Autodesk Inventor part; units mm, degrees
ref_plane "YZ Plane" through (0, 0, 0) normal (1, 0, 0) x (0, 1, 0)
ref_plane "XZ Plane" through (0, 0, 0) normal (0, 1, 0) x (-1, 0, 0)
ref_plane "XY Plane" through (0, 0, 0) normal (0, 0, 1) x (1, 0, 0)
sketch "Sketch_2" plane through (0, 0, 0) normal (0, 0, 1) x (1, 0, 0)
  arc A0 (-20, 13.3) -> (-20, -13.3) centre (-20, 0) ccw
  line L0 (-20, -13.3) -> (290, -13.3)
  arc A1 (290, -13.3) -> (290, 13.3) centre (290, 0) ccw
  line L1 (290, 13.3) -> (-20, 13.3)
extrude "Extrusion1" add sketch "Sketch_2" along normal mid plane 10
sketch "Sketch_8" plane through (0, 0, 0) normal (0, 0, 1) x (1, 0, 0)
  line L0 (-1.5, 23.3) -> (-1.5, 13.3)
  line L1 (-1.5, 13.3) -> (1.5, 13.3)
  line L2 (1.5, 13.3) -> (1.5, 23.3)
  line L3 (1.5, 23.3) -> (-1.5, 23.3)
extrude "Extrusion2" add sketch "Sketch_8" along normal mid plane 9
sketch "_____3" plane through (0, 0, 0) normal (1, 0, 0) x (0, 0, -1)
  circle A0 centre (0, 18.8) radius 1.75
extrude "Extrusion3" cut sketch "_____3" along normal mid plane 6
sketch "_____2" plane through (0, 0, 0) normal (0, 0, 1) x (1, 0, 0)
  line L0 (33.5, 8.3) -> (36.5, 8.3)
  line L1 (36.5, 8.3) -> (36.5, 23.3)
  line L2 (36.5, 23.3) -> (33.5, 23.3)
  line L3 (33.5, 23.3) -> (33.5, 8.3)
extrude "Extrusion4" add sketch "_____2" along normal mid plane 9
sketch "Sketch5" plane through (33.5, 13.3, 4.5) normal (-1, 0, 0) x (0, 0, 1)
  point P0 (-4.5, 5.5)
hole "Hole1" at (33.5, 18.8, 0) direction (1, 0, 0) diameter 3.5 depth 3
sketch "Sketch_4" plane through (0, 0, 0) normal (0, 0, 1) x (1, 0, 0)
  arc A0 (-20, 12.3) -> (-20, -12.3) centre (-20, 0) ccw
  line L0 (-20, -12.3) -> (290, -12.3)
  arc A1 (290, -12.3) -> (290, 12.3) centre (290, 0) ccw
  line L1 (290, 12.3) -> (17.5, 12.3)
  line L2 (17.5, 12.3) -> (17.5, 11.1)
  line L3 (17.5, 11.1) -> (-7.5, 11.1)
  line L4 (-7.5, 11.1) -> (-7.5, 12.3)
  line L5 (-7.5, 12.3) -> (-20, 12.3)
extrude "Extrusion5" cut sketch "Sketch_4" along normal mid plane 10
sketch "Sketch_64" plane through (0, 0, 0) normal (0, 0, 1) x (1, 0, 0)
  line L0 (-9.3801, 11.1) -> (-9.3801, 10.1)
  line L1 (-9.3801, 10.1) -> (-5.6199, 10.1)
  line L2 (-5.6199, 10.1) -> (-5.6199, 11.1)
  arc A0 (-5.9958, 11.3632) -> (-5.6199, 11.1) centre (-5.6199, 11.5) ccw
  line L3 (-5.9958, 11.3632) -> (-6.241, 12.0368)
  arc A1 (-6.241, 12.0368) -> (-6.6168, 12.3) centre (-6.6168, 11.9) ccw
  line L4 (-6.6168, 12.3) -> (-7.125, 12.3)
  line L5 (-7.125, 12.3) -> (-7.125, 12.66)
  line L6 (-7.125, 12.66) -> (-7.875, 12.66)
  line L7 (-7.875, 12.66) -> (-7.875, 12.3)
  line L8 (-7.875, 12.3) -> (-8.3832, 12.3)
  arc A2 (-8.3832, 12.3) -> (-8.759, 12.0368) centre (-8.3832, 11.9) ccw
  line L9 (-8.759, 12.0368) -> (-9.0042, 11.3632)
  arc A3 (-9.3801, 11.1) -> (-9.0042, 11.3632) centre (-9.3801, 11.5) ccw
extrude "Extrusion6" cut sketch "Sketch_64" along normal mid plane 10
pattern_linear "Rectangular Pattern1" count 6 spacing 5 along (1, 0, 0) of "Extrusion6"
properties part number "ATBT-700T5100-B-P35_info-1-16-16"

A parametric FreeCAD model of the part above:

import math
import FreeCAD as App
import Part
import Sketcher
from FreeCAD import Vector
Q = App.Units.Quantity

doc = App.newDocument("Part")
body = doc.addObject("PartDesign::Body", "Body")

# Sketch on XY plane
sketch1 = body.newObject("Sketcher::SketchObject", "Sketch")
sketch1.AttachmentSupport = (doc.getObject("XY_Plane"), [""])
sketch1.MapMode = "FlatFace"
sketch1.addGeometry([
    Part.LineSegment(Vector(290, 13.3, 0), Vector(-20, 13.3, 0)),
    Part.ArcOfCircle(Part.Circle(Vector(-20, 0, 0), Vector(0, 0, 1), 13.3), math.radians(90), math.radians(270)),
    Part.LineSegment(Vector(-20, -13.3, 0), Vector(290, -13.3, 0)),
    Part.ArcOfCircle(Part.Circle(Vector(290, 0, 0), Vector(0, 0, 1), 13.3), math.radians(-90), math.radians(90)),
], False)
sketch1.addConstraint([
    Sketcher.Constraint("Tangent", 0, 2, 1, 1),
    Sketcher.Constraint("Tangent", 1, 2, 2, 1),
    Sketcher.Constraint("Tangent", 2, 2, 3, 1),
    Sketcher.Constraint("Tangent", 3, 2, 0, 1),
    Sketcher.Constraint("Horizontal", 0),
    Sketcher.Constraint("Horizontal", 2),
    Sketcher.Constraint("PointOnObject", 1, 3, -1),
    Sketcher.Constraint("Radius", 1, Q("13.3 mm")),
    Sketcher.Constraint("DistanceX", 0, 2, 0, 1, Q("310 mm")),
    Sketcher.Constraint("DistanceX", 1, 3, -1, 1, Q("20 mm")),
])
pad1 = body.newObject("PartDesign::Pad", "Pad")
pad1.Profile = sketch1
pad1.Length = 10
pad1.Midplane = True

# Sketch on XY plane
sketch2 = body.newObject("Sketcher::SketchObject", "Sketch001")
sketch2.AttachmentSupport = (doc.getObject("XY_Plane"), [""])
sketch2.MapMode = "FlatFace"
sketch2.addGeometry([
    Part.LineSegment(Vector(1.5, 23.3, 0), Vector(-1.5, 23.3, 0)),
    Part.LineSegment(Vector(-1.5, 23.3, 0), Vector(-1.5, 13.3, 0)),
    Part.LineSegment(Vector(-1.5, 13.3, 0), Vector(1.5, 13.3, 0)),
    Part.LineSegment(Vector(1.5, 13.3, 0), Vector(1.5, 23.3, 0)),
], False)
sketch2.addConstraint([
    Sketcher.Constraint("Coincident", 0, 2, 1, 1),
    Sketcher.Constraint("Coincident", 1, 2, 2, 1),
    Sketcher.Constraint("Coincident", 2, 2, 3, 1),
    Sketcher.Constraint("Coincident", 3, 2, 0, 1),
    Sketcher.Constraint("Horizontal", 0),
    Sketcher.Constraint("Vertical", 1),
    Sketcher.Constraint("Horizontal", 2),
    Sketcher.Constraint("Vertical", 3),
    Sketcher.Constraint("DistanceX", 0, 2, 0, 1, Q("3 mm")),
    Sketcher.Constraint("DistanceY", 1, 2, 1, 1, Q("10 mm")),
    Sketcher.Constraint("DistanceX", 0, 2, -1, 1, Q("1.5 mm")),
    Sketcher.Constraint("DistanceY", -1, 1, 0, 2, Q("23.3 mm")),
])
pad2 = body.newObject("PartDesign::Pad", "Pad001")
pad2.Profile = sketch2
pad2.Length = 9
pad2.Midplane = True

# Sketch on YZ plane
sketch3 = body.newObject("Sketcher::SketchObject", "Sketch002")
sketch3.AttachmentSupport = (doc.getObject("YZ_Plane"), [""])
sketch3.MapMode = "FlatFace"
sketch3.addGeometry(Part.Circle(Vector(18.8, 0, 0), Vector(0, 0, 1), 1.75), False)
sketch3.addConstraint([
    Sketcher.Constraint("PointOnObject", 0, 3, -1),
    Sketcher.Constraint("Diameter", 0, Q("3.5 mm")),
    Sketcher.Constraint("DistanceX", -1, 1, 0, 3, Q("18.8 mm")),
])
pocket1 = body.newObject("PartDesign::Pocket", "Pocket")
pocket1.Profile = sketch3
pocket1.Length = 6
pocket1.Midplane = True

# Sketch on XY plane
sketch4 = body.newObject("Sketcher::SketchObject", "Sketch003")
sketch4.AttachmentSupport = (doc.getObject("XY_Plane"), [""])
sketch4.MapMode = "FlatFace"
sketch4.addGeometry([
    Part.LineSegment(Vector(33.5, 23.3, 0), Vector(33.5, 8.3, 0)),
    Part.LineSegment(Vector(33.5, 8.3, 0), Vector(36.5, 8.3, 0)),
    Part.LineSegment(Vector(36.5, 8.3, 0), Vector(36.5, 23.3, 0)),
    Part.LineSegment(Vector(36.5, 23.3, 0), Vector(33.5, 23.3, 0)),
], False)
sketch4.addConstraint([
    Sketcher.Constraint("Coincident", 0, 2, 1, 1),
    Sketcher.Constraint("Coincident", 1, 2, 2, 1),
    Sketcher.Constraint("Coincident", 2, 2, 3, 1),
    Sketcher.Constraint("Coincident", 3, 2, 0, 1),
    Sketcher.Constraint("Vertical", 0),
    Sketcher.Constraint("Horizontal", 1),
    Sketcher.Constraint("Vertical", 2),
    Sketcher.Constraint("Horizontal", 3),
    Sketcher.Constraint("DistanceX", 1, 1, 1, 2, Q("3 mm")),
    Sketcher.Constraint("DistanceY", 0, 2, 0, 1, Q("15 mm")),
    Sketcher.Constraint("DistanceX", -1, 1, 0, 2, Q("33.5 mm")),
    Sketcher.Constraint("DistanceY", -1, 1, 0, 2, Q("8.3 mm")),
])
pad3 = body.newObject("PartDesign::Pad", "Pad002")
pad3.Profile = sketch4
pad3.Length = 9
pad3.Midplane = True

# Sketch on YZ plane
sketch5 = body.newObject("Sketcher::SketchObject", "Sketch004")
sketch5.AttachmentSupport = (doc.getObject("YZ_Plane"), [""])
sketch5.MapMode = "FlatFace"
sketch5.AttachmentOffset = App.Placement(Vector(0, 0, 33.5), App.Rotation())
sketch5.addGeometry(Part.Circle(Vector(18.8, 0, 0), Vector(0, 0, 1), 1.75), False)
sketch5.addConstraint([
    Sketcher.Constraint("PointOnObject", 0, 3, -1),
    Sketcher.Constraint("Diameter", 0, Q("3.5 mm")),
    Sketcher.Constraint("DistanceX", -1, 1, 0, 3, Q("18.8 mm")),
])
doc.recompute()
hole = body.newObject("PartDesign::Hole", "Hole")
hole.Profile = sketch5
hole.ThreadType = "None"
hole.Diameter = 3.5
hole.DepthType = "Dimension"
hole.Depth = 3
hole.DrillPoint = "Flat"
hole.Reversed = True

# Sketch on XY plane
sketch6 = body.newObject("Sketcher::SketchObject", "Sketch005")
sketch6.AttachmentSupport = (doc.getObject("XY_Plane"), [""])
sketch6.MapMode = "FlatFace"
sketch6.addGeometry([
    Part.LineSegment(Vector(-7.5, 12.3, 0), Vector(-20, 12.3, 0)),  # 0
    Part.ArcOfCircle(Part.Circle(Vector(-20, 0, 0), Vector(0, 0, 1), 12.3), math.radians(90), math.radians(270)),  # 1
    Part.LineSegment(Vector(-20, -12.3, 0), Vector(290, -12.3, 0)),  # 2
    Part.ArcOfCircle(Part.Circle(Vector(290, 0, 0), Vector(0, 0, 1), 12.3), math.radians(-90), math.radians(90)),  # 3
    Part.LineSegment(Vector(290, 12.3, 0), Vector(17.5, 12.3, 0)),  # 4
    Part.LineSegment(Vector(17.5, 12.3, 0), Vector(17.5, 11.1, 0)),  # 5
    Part.LineSegment(Vector(17.5, 11.1, 0), Vector(-7.5, 11.1, 0)),  # 6
    Part.LineSegment(Vector(-7.5, 11.1, 0), Vector(-7.5, 12.3, 0)),  # 7
], False)
sketch6.addConstraint([
    Sketcher.Constraint("Tangent", 0, 2, 1, 1),
    Sketcher.Constraint("Tangent", 1, 2, 2, 1),
    Sketcher.Constraint("Tangent", 2, 2, 3, 1),
    Sketcher.Constraint("Tangent", 3, 2, 4, 1),
    Sketcher.Constraint("Coincident", 4, 2, 5, 1),
    Sketcher.Constraint("Coincident", 5, 2, 6, 1),
    Sketcher.Constraint("Coincident", 6, 2, 7, 1),
    Sketcher.Constraint("Coincident", 7, 2, 0, 1),
    Sketcher.Constraint("Horizontal", 0),
    Sketcher.Constraint("Horizontal", 2),
    Sketcher.Constraint("Horizontal", 4),
    Sketcher.Constraint("Vertical", 5),
    Sketcher.Constraint("Horizontal", 6),
    Sketcher.Constraint("Vertical", 7),
    Sketcher.Constraint("Equal", 1, 3),
    Sketcher.Constraint("PointOnObject", 1, 3, -1),
    Sketcher.Constraint("Radius", 1, Q("12.3 mm")),
    Sketcher.Constraint("DistanceX", 2, 1, 2, 2, Q("310 mm")),
    Sketcher.Constraint("DistanceX", 6, 2, 6, 1, Q("25 mm")),
    Sketcher.Constraint("DistanceX", 0, 2, 0, 1, Q("12.5 mm")),
    Sketcher.Constraint("DistanceY", 5, 2, 5, 1, Q("1.2 mm")),
    Sketcher.Constraint("DistanceX", 1, 3, -1, 1, Q("20 mm")),
])
pocket2 = body.newObject("PartDesign::Pocket", "Pocket001")
pocket2.Profile = sketch6
pocket2.Length = 10
pocket2.Midplane = True

# Sketch on XY plane
sketch7 = body.newObject("Sketcher::SketchObject", "Sketch006")
sketch7.AttachmentSupport = (doc.getObject("XY_Plane"), [""])
sketch7.MapMode = "FlatFace"
sketch7.addGeometry([
    Part.ArcOfCircle(Part.Circle(Vector(-9.3801, 11.5, 0), Vector(0, 0, 1), 0.4), math.radians(-90), math.radians(-19.997791)),  # 0
    Part.LineSegment(Vector(-9.3801, 11.1, 0), Vector(-9.3801, 10.1, 0)),  # 1
    Part.LineSegment(Vector(-9.3801, 10.1, 0), Vector(-5.6199, 10.1, 0)),  # 2
    Part.LineSegment(Vector(-5.6199, 10.1, 0), Vector(-5.6199, 11.1, 0)),  # 3
    Part.ArcOfCircle(Part.Circle(Vector(-5.6199, 11.5, 0), Vector(0, 0, 1), 0.400019), math.radians(-160.002209), math.radians(-90)),  # 4
    Part.LineSegment(Vector(-5.9958, 11.3632, 0), Vector(-6.241, 12.0368, 0)),  # 5
    Part.ArcOfCircle(Part.Circle(Vector(-6.6168, 11.9, 0), Vector(0, 0, 1), 0.399925), math.radians(20.002691), math.radians(90)),  # 6
    Part.LineSegment(Vector(-6.6168, 12.3, 0), Vector(-7.125, 12.3, 0)),  # 7
    Part.LineSegment(Vector(-7.125, 12.3, 0), Vector(-7.125, 12.66, 0)),  # 8
    Part.LineSegment(Vector(-7.125, 12.66, 0), Vector(-7.875, 12.66, 0)),  # 9
    Part.LineSegment(Vector(-7.875, 12.66, 0), Vector(-7.875, 12.3, 0)),  # 10
    Part.LineSegment(Vector(-7.875, 12.3, 0), Vector(-8.3832, 12.3, 0)),  # 11
    Part.ArcOfCircle(Part.Circle(Vector(-8.3832, 11.9, 0), Vector(0, 0, 1), 0.4), math.radians(90), math.radians(159.997309)),  # 12
    Part.LineSegment(Vector(-8.759, 12.0368, 0), Vector(-9.0042, 11.3632, 0)),  # 13
], False)
sketch7.addConstraint([
    Sketcher.Constraint("Coincident", 0, 1, 1, 1),
    Sketcher.Constraint("Coincident", 1, 2, 2, 1),
    Sketcher.Constraint("Coincident", 2, 2, 3, 1),
    Sketcher.Constraint("Coincident", 3, 2, 4, 2),
    Sketcher.Constraint("Tangent", 4, 1, 5, 1),
    Sketcher.Constraint("Tangent", 5, 2, 6, 1),
    Sketcher.Constraint("Tangent", 6, 2, 7, 1),
    Sketcher.Constraint("Coincident", 7, 2, 8, 1),
    Sketcher.Constraint("Coincident", 8, 2, 9, 1),
    Sketcher.Constraint("Coincident", 9, 2, 10, 1),
    Sketcher.Constraint("Coincident", 10, 2, 11, 1),
    Sketcher.Constraint("Tangent", 11, 2, 12, 1),
    Sketcher.Constraint("Tangent", 12, 2, 13, 1),
    Sketcher.Constraint("Tangent", 13, 2, 0, 2),
    Sketcher.Constraint("Vertical", 1),
    Sketcher.Constraint("Horizontal", 2),
    Sketcher.Constraint("Vertical", 3),
    Sketcher.Constraint("Horizontal", 7),
    Sketcher.Constraint("Vertical", 8),
    Sketcher.Constraint("Horizontal", 9),
    Sketcher.Constraint("Vertical", 10),
    Sketcher.Constraint("Horizontal", 11),
    Sketcher.Constraint("Equal", 0, 4),
    Sketcher.Constraint("Equal", 4, 6),
    Sketcher.Constraint("Equal", 6, 12),
    Sketcher.Constraint("Horizontal", 0, 3, 4, 3),
    Sketcher.Constraint("Horizontal", 6, 3, 12, 3),
    Sketcher.Constraint("Horizontal", 5, 2, 12, 2),
    Sketcher.Constraint("Vertical", 4, 3, 2, 2),
    Sketcher.Constraint("Equal", 7, 11),
    Sketcher.Constraint("Radius", 0, Q("0.4 mm")),
    Sketcher.Constraint("DistanceY", 1, 2, 1, 1, Q("1 mm")),
    Sketcher.Constraint("DistanceX", 9, 2, 9, 1, Q("0.75 mm")),
    Sketcher.Constraint("DistanceY", 8, 1, 8, 2, Q("0.36 mm")),
    Sketcher.Constraint("DistanceY", -1, 1, 0, 3, Q("11.5 mm")),
    Sketcher.Constraint("DistanceY", -1, 1, 6, 3, Q("11.9 mm")),
    Sketcher.Constraint("DistanceX", 0, 3, -1, 1, Q("9.38 mm")),
    Sketcher.Constraint("DistanceX", 4, 3, -1, 1, Q("5.62 mm")),
    Sketcher.Constraint("DistanceX", 0, 1, -1, 1, Q("9.38 mm")),
    Sketcher.Constraint("DistanceX", 7, 2, 7, 1, Q("0.5082 mm")),
])
pocket3 = body.newObject("PartDesign::Pocket", "Pocket002")
pocket3.Profile = sketch7
pocket3.Length = 10
pocket3.Midplane = True
doc.recompute()

linearpattern = body.newObject("PartDesign::LinearPattern", "LinearPattern")
linearpattern.Originals = [pocket3]
linearpattern.Direction = (doc.getObject("X_Axis"), [""])
linearpattern.Mode = "offset"
linearpattern.Offset = 5
linearpattern.Occurrences = 6
body.Tip = linearpattern

doc.recompute()
